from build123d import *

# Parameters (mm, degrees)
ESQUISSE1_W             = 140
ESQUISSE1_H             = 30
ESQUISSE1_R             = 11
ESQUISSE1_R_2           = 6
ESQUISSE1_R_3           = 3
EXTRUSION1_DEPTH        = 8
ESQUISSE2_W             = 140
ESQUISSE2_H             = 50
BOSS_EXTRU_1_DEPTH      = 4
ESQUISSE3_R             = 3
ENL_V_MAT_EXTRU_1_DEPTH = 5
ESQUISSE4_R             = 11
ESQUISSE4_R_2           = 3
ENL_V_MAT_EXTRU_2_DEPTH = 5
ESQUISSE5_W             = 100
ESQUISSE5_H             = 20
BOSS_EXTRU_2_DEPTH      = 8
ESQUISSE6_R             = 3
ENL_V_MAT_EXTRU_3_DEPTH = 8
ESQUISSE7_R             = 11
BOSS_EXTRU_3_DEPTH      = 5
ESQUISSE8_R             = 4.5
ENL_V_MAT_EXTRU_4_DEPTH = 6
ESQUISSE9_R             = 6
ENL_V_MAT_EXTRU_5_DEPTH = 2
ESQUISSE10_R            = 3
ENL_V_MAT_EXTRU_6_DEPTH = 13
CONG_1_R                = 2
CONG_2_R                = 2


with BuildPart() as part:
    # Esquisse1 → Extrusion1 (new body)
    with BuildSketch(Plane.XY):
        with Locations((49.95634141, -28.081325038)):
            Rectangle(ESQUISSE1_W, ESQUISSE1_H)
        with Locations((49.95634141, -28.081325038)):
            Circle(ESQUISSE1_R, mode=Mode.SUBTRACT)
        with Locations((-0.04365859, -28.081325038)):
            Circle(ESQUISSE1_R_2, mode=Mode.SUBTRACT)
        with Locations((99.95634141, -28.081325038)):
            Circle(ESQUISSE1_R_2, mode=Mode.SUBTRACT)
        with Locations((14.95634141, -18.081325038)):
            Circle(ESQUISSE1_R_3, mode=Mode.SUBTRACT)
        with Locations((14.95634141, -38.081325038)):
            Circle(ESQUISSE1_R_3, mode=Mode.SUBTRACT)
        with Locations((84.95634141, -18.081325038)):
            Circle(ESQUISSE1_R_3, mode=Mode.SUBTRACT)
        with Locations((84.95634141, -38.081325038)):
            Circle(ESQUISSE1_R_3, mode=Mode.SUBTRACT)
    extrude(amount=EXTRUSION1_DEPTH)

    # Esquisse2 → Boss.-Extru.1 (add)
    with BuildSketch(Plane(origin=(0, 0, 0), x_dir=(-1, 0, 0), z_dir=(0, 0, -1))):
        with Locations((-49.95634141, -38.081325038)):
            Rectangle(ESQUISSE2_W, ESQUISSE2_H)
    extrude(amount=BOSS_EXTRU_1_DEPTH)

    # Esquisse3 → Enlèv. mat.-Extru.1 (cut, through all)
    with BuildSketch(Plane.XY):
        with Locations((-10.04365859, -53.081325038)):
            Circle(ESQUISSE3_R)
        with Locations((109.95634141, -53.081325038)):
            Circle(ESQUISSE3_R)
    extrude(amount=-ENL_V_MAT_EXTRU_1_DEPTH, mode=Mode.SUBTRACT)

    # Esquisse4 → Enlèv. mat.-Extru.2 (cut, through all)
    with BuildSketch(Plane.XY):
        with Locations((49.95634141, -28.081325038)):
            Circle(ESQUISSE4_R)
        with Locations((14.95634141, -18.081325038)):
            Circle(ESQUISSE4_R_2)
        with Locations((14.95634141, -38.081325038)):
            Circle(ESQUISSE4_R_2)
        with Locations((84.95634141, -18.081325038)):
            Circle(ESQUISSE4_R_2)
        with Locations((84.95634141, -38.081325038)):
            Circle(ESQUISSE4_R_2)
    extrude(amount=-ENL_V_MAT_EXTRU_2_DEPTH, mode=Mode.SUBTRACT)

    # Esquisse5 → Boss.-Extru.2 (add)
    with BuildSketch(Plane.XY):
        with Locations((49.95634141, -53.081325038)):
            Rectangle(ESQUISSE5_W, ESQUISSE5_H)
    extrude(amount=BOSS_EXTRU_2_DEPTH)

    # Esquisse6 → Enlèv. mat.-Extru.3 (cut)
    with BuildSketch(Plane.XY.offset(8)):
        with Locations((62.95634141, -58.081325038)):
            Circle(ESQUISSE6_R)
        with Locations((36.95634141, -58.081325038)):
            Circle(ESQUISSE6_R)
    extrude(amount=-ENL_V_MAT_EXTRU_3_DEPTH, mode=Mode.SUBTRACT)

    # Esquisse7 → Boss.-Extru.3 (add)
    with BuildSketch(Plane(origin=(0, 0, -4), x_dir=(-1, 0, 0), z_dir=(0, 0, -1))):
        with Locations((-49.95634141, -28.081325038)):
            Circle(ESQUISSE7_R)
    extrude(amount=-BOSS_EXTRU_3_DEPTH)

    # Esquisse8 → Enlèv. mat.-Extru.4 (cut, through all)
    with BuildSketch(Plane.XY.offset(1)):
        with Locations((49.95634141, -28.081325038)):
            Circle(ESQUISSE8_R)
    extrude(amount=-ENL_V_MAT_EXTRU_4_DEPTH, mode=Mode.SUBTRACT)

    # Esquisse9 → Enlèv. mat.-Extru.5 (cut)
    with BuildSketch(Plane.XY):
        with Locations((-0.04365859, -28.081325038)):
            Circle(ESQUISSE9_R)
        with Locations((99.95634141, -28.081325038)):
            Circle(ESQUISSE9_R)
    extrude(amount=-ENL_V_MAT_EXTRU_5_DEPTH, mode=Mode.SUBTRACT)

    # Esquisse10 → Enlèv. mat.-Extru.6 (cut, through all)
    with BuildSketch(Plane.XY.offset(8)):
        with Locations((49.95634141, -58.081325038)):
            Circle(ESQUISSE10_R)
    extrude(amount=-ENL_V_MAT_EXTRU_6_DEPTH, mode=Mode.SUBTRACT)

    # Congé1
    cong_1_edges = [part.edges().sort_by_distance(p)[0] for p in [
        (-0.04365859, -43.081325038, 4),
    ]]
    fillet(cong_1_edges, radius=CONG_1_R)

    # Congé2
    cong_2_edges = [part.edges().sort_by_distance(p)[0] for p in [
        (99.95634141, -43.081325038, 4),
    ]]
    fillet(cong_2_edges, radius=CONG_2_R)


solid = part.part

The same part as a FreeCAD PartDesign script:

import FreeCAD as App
import Part
import Sketcher


def edges_at(feature, points):
    """Names of the edges that pass closest to the given points."""
    edges = feature.Shape.Edges
    near = lambda p: min(range(len(edges)), key=lambda i: edges[i].distToShape(Part.Vertex(*p))[0])
    return sorted({f"Edge{near(p) + 1}" for p in points})


def add_polygon(sketch, points):
    """Adds a closed chain of lines whose ends are joined by coincident constraints."""
    first, n = sketch.GeometryCount, len(points)
    for a, b in zip(points, points[1:] + points[:1]):
        sketch.addGeometry(Part.LineSegment(App.Vector(*a, 0), App.Vector(*b, 0)), False)
    for i in range(n):
        sketch.addConstraint(Sketcher.Constraint("Coincident", first + i, 2, first + (i + 1) % n, 1))

doc = App.newDocument("Part")
params = doc.addObject("Spreadsheet::Sheet", "Params")
for row, (alias, value) in enumerate([
    ("sketch1_diameter", "6 mm"),
    ("sketch1_diameter2", "12 mm"),
    ("sketch1_diameter3", "22 mm"),
    ("sketch1_width", "140 mm"),
    ("sketch1_height", "30 mm"),
    ("pad1_length", "8 mm"),
    ("sketch2_width", "140 mm"),
    ("sketch2_height", "50 mm"),
    ("pad2_length", "4 mm"),
    ("sketch3_diameter", "6 mm"),
    ("sketch4_diameter", "22 mm"),
    ("sketch4_diameter2", "6 mm"),
    ("sketch5_width", "100 mm"),
    ("sketch5_height", "20 mm"),
    ("pad3_length", "8 mm"),
    ("sketch6_diameter", "6 mm"),
    ("pocket3_length", "8 mm"),
    ("sketch7_diameter", "22 mm"),
    ("pad4_length", "5 mm"),
    ("sketch8_diameter", "9 mm"),
    ("sketch9_diameter", "12 mm"),
    ("pocket5_length", "2 mm"),
    ("sketch10_diameter", "6 mm"),
    ("fillet_radius", "2 mm"),
    ("fillet2_radius", "2 mm"),
], start=1):
    params.set(f"A{row}", alias)
    params.set(f"B{row}", "=" + value)
    params.setAlias(f"B{row}", alias)

body = doc.addObject("PartDesign::Body", "Body")

# Sketch on XY plane
sketch1 = doc.addObject("Sketcher::SketchObject", "Sketch")
body.addObject(sketch1)
sketch1.AttachmentSupport = (doc.XY_Plane, [""])
sketch1.MapMode = "FlatFace"
add_polygon(sketch1, [(-20.043659, -13.081325), (-20.043659, -43.081325), (119.956341, -43.081325), (119.956341, -13.081325)])  # lines 0-3
sketch1.addGeometry(Part.Circle(App.Vector(14.956341, -38.081325, 0), App.Vector(0, 0, 1), 3), False)  # 4
sketch1.addGeometry(Part.Circle(App.Vector(84.956341, -38.081325, 0), App.Vector(0, 0, 1), 3), False)  # 5
sketch1.addGeometry(Part.Circle(App.Vector(-0.043659, -28.081325, 0), App.Vector(0, 0, 1), 6), False)  # 6
sketch1.addGeometry(Part.Circle(App.Vector(14.956341, -18.081325, 0), App.Vector(0, 0, 1), 3), False)  # 7
sketch1.addGeometry(Part.Circle(App.Vector(49.956341, -28.081325, 0), App.Vector(0, 0, 1), 11), False)  # 8
sketch1.addGeometry(Part.Circle(App.Vector(99.956341, -28.081325, 0), App.Vector(0, 0, 1), 6), False)  # 9
sketch1.addGeometry(Part.Circle(App.Vector(84.956341, -18.081325, 0), App.Vector(0, 0, 1), 3), False)  # 10
sketch1.addConstraint([
    Sketcher.Constraint("Vertical", 0),
    Sketcher.Constraint("Horizontal", 1),
    Sketcher.Constraint("Vertical", 2),
    Sketcher.Constraint("Horizontal", 3),
    Sketcher.Constraint("Equal", 4, 5),
    Sketcher.Constraint("Equal", 5, 7),
    Sketcher.Constraint("Equal", 6, 9),
    Sketcher.Constraint("Equal", 7, 10),
    Sketcher.Constraint("Horizontal", 4, 3, 5, 3),
    Sketcher.Constraint("Horizontal", 6, 3, 8, 3),
    Sketcher.Constraint("Horizontal", 8, 3, 9, 3),
    Sketcher.Constraint("Horizontal", 7, 3, 10, 3),
    Sketcher.Constraint("Vertical", 4, 3, 7, 3),
    Sketcher.Constraint("Vertical", 5, 3, 10, 3),
    Sketcher.Constraint("Diameter", 4, 6.0),
    Sketcher.Constraint("Diameter", 6, 12.0),
    Sketcher.Constraint("Diameter", 8, 22.0),
    Sketcher.Constraint("DistanceX", 1, 1, 1, 2, 140.0),
    Sketcher.Constraint("DistanceY", 0, 2, 0, 1, 30.0),
    Sketcher.Constraint("DistanceX", 4, 3, 5, 3, 70.0),
    Sketcher.Constraint("DistanceX", 6, 3, 4, 3, 15.0),
    Sketcher.Constraint("DistanceY", 4, 3, 6, 3, 10.0),
    Sketcher.Constraint("DistanceY", 6, 3, 7, 3, 10.0),
    Sketcher.Constraint("DistanceX", 8, 3, 5, 3, 35.0),
    Sketcher.Constraint("DistanceX", 5, 3, 9, 3, 15.0),
    Sketcher.Constraint("DistanceX", 0, 2, 6, 3, 20.0),
    Sketcher.Constraint("DistanceY", 0, 2, 6, 3, 15.0),
    Sketcher.Constraint("DistanceX", -1, 1, 4, 3, 14.956341),
    Sketcher.Constraint("DistanceY", 4, 3, -1, 1, 38.081325),
])
sketch1.setExpression("Constraints[18]", "Params.sketch1_diameter")
sketch1.setExpression("Constraints[19]", "Params.sketch1_diameter2")
sketch1.setExpression("Constraints[20]", "Params.sketch1_diameter3")
sketch1.setExpression("Constraints[21]", "Params.sketch1_width")
sketch1.setExpression("Constraints[22]", "Params.sketch1_height")
pad1 = doc.addObject("PartDesign::Pad", "Pad")
body.addObject(pad1)
pad1.Profile = sketch1
pad1.setExpression("Length", "Params.pad1_length")

# Sketch on XY plane
sketch2 = doc.addObject("Sketcher::SketchObject", "Sketch001")
body.addObject(sketch2)
sketch2.AttachmentSupport = (doc.XY_Plane, [""])
sketch2.MapMode = "FlatFace"
add_polygon(sketch2, [(119.956341, -13.081325), (119.956341, -63.081325), (-20.043659, -63.081325), (-20.043659, -13.081325)])  # lines 0-3
sketch2.addConstraint([
    Sketcher.Constraint("Vertical", 0),
    Sketcher.Constraint("Horizontal", 1),
    Sketcher.Constraint("Vertical", 2),
    Sketcher.Constraint("Horizontal", 3),
    Sketcher.Constraint("DistanceX", 1, 2, 1, 1, 140.0),
    Sketcher.Constraint("DistanceY", 0, 2, 0, 1, 50.0),
    Sketcher.Constraint("DistanceX", -1, 1, 0, 2, 119.956341),
    Sketcher.Constraint("DistanceY", 0, 2, -1, 1, 63.081325),
])
sketch2.setExpression("Constraints[8]", "Params.sketch2_width")
sketch2.setExpression("Constraints[9]", "Params.sketch2_height")
pad2 = doc.addObject("PartDesign::Pad", "Pad001")
body.addObject(pad2)
pad2.Profile = sketch2
pad2.setExpression("Length", "Params.pad2_length")
pad2.Reversed = True

# Sketch on XY plane
sketch3 = doc.addObject("Sketcher::SketchObject", "Sketch002")
body.addObject(sketch3)
sketch3.AttachmentSupport = (doc.XY_Plane, [""])
sketch3.MapMode = "FlatFace"
sketch3.addGeometry([
    Part.Circle(App.Vector(-10.043659, -53.081325, 0), App.Vector(0, 0, 1), 3),
    Part.Circle(App.Vector(109.956341, -53.081325, 0), App.Vector(0, 0, 1), 3),
], False)
sketch3.addConstraint([
    Sketcher.Constraint("Equal", 0, 1),
    Sketcher.Constraint("Horizontal", 0, 3, 1, 3),
    Sketcher.Constraint("Diameter", 0, 6.0),
    Sketcher.Constraint("DistanceX", 0, 3, 1, 3, 120.0),
    Sketcher.Constraint("DistanceX", 0, 3, -1, 1, 10.043659),
    Sketcher.Constraint("DistanceY", 0, 3, -1, 1, 53.081325),
])
sketch3.setExpression("Constraints[2]", "Params.sketch3_diameter")
pocket1 = doc.addObject("PartDesign::Pocket", "Pocket")
body.addObject(pocket1)
pocket1.Profile = sketch3
pocket1.Type = "ThroughAll"

# Sketch on XY plane
sketch4 = doc.addObject("Sketcher::SketchObject", "Sketch003")
body.addObject(sketch4)
sketch4.AttachmentSupport = (doc.XY_Plane, [""])
sketch4.MapMode = "FlatFace"
sketch4.addGeometry([
    Part.Circle(App.Vector(49.956341, -28.081325, 0), App.Vector(0, 0, 1), 11),  # 0
    Part.Circle(App.Vector(14.956341, -18.081325, 0), App.Vector(0, 0, 1), 3),  # 1
    Part.Circle(App.Vector(14.956341, -38.081325, 0), App.Vector(0, 0, 1), 3),  # 2
    Part.Circle(App.Vector(84.956341, -18.081325, 0), App.Vector(0, 0, 1), 3),  # 3
    Part.Circle(App.Vector(84.956341, -38.081325, 0), App.Vector(0, 0, 1), 3),  # 4
], False)
sketch4.addConstraint([
    Sketcher.Constraint("Equal", 1, 2),
    Sketcher.Constraint("Equal", 2, 3),
    Sketcher.Constraint("Equal", 3, 4),
    Sketcher.Constraint("Horizontal", 1, 3, 3, 3),
    Sketcher.Constraint("Horizontal", 2, 3, 4, 3),
    Sketcher.Constraint("Vertical", 1, 3, 2, 3),
    Sketcher.Constraint("Vertical", 3, 3, 4, 3),
    Sketcher.Constraint("Diameter", 0, 22.0),
    Sketcher.Constraint("Diameter", 1, 6.0),
    Sketcher.Constraint("DistanceX", 1, 3, 0, 3, 35.0),
    Sketcher.Constraint("DistanceY", 0, 3, 1, 3, 10.0),
    Sketcher.Constraint("DistanceY", 2, 3, 1, 3, 20.0),
    Sketcher.Constraint("DistanceX", 0, 3, 3, 3, 35.0),
    Sketcher.Constraint("DistanceX", -1, 1, 0, 3, 49.956341),
    Sketcher.Constraint("DistanceY", 0, 3, -1, 1, 28.081325),
])
sketch4.setExpression("Constraints[7]", "Params.sketch4_diameter")
sketch4.setExpression("Constraints[8]", "Params.sketch4_diameter2")
pocket2 = doc.addObject("PartDesign::Pocket", "Pocket001")
body.addObject(pocket2)
pocket2.Profile = sketch4
pocket2.Type = "ThroughAll"

# Sketch on XY plane
sketch5 = doc.addObject("Sketcher::SketchObject", "Sketch004")
body.addObject(sketch5)
sketch5.AttachmentSupport = (doc.XY_Plane, [""])
sketch5.MapMode = "FlatFace"
add_polygon(sketch5, [(-0.043659, -43.081325), (-0.043659, -63.081325), (99.956341, -63.081325), (99.956341, -43.081325)])  # lines 0-3
sketch5.addConstraint([
    Sketcher.Constraint("Vertical", 0),
    Sketcher.Constraint("Horizontal", 1),
    Sketcher.Constraint("Vertical", 2),
    Sketcher.Constraint("Horizontal", 3),
    Sketcher.Constraint("DistanceX", 1, 1, 1, 2, 100.0),
    Sketcher.Constraint("DistanceY", 0, 2, 0, 1, 20.0),
    Sketcher.Constraint("DistanceX", 0, 2, -1, 1, 0.043659),
    Sketcher.Constraint("DistanceY", 0, 2, -1, 1, 63.081325),
])
sketch5.setExpression("Constraints[8]", "Params.sketch5_width")
sketch5.setExpression("Constraints[9]", "Params.sketch5_height")
pad3 = doc.addObject("PartDesign::Pad", "Pad002")
body.addObject(pad3)
pad3.Profile = sketch5
pad3.setExpression("Length", "Params.pad3_length")

# Sketch on XY plane
sketch6 = doc.addObject("Sketcher::SketchObject", "Sketch005")
body.addObject(sketch6)
sketch6.AttachmentSupport = (doc.XY_Plane, [""])
sketch6.MapMode = "FlatFace"
sketch6.AttachmentOffset = App.Placement(App.Vector(0, 0, 8), App.Rotation())
sketch6.addGeometry([
    Part.Circle(App.Vector(62.956341, -58.081325, 0), App.Vector(0, 0, 1), 3),
    Part.Circle(App.Vector(36.956341, -58.081325, 0), App.Vector(0, 0, 1), 3),
], False)
sketch6.addConstraint([
    Sketcher.Constraint("Equal", 0, 1),
    Sketcher.Constraint("Horizontal", 0, 3, 1, 3),
    Sketcher.Constraint("Diameter", 0, 6.0),
    Sketcher.Constraint("DistanceX", 1, 3, 0, 3, 26.0),
    Sketcher.Constraint("DistanceX", -1, 1, 0, 3, 62.956341),
    Sketcher.Constraint("DistanceY", 0, 3, -1, 1, 58.081325),
])
sketch6.setExpression("Constraints[2]", "Params.sketch6_diameter")
pocket3 = doc.addObject("PartDesign::Pocket", "Pocket002")
body.addObject(pocket3)
pocket3.Profile = sketch6
pocket3.setExpression("Length", "Params.pocket3_length")

# Sketch on XY plane
sketch7 = doc.addObject("Sketcher::SketchObject", "Sketch006")
body.addObject(sketch7)
sketch7.AttachmentSupport = (doc.XY_Plane, [""])
sketch7.MapMode = "FlatFace"
sketch7.AttachmentOffset = App.Placement(App.Vector(0, 0, -4), App.Rotation())
sketch7.addGeometry(Part.Circle(App.Vector(49.956341, -28.081325, 0), App.Vector(0, 0, 1), 11), False)
sketch7.addConstraint([
    Sketcher.Constraint("Diameter", 0, 22.0),
    Sketcher.Constraint("DistanceX", -1, 1, 0, 3, 49.956341),
    Sketcher.Constraint("DistanceY", 0, 3, -1, 1, 28.081325),
])
sketch7.setExpression("Constraints[0]", "Params.sketch7_diameter")
pad4 = doc.addObject("PartDesign::Pad", "Pad003")
body.addObject(pad4)
pad4.Profile = sketch7
pad4.setExpression("Length", "Params.pad4_length")

# Sketch on XY plane
sketch8 = doc.addObject("Sketcher::SketchObject", "Sketch007")
body.addObject(sketch8)
sketch8.AttachmentSupport = (doc.XY_Plane, [""])
sketch8.MapMode = "FlatFace"
sketch8.AttachmentOffset = App.Placement(App.Vector(0, 0, 1), App.Rotation())
sketch8.addGeometry(Part.Circle(App.Vector(49.956341, -28.081325, 0), App.Vector(0, 0, 1), 4.5), False)
sketch8.addConstraint([
    Sketcher.Constraint("Diameter", 0, 9.0),
    Sketcher.Constraint("DistanceX", -1, 1, 0, 3, 49.956341),
    Sketcher.Constraint("DistanceY", 0, 3, -1, 1, 28.081325),
])
sketch8.setExpression("Constraints[0]", "Params.sketch8_diameter")
pocket4 = doc.addObject("PartDesign::Pocket", "Pocket003")
body.addObject(pocket4)
pocket4.Profile = sketch8
pocket4.Type = "ThroughAll"

# Sketch on XY plane
sketch9 = doc.addObject("Sketcher::SketchObject", "Sketch008")
body.addObject(sketch9)
sketch9.AttachmentSupport = (doc.XY_Plane, [""])
sketch9.MapMode = "FlatFace"
sketch9.addGeometry([
    Part.Circle(App.Vector(-0.043659, -28.081325, 0), App.Vector(0, 0, 1), 6),
    Part.Circle(App.Vector(99.956341, -28.081325, 0), App.Vector(0, 0, 1), 6),
], False)
sketch9.addConstraint([
    Sketcher.Constraint("Equal", 0, 1),
    Sketcher.Constraint("Horizontal", 0, 3, 1, 3),
    Sketcher.Constraint("Diameter", 0, 12.0),
    Sketcher.Constraint("DistanceX", 0, 3, 1, 3, 100.0),
    Sketcher.Constraint("DistanceX", 0, 3, -1, 1, 0.043659),
    Sketcher.Constraint("DistanceY", 0, 3, -1, 1, 28.081325),
])
sketch9.setExpression("Constraints[2]", "Params.sketch9_diameter")
pocket5 = doc.addObject("PartDesign::Pocket", "Pocket004")
body.addObject(pocket5)
pocket5.Profile = sketch9
pocket5.setExpression("Length", "Params.pocket5_length")

# Sketch on XY plane
sketch10 = doc.addObject("Sketcher::SketchObject", "Sketch009")
body.addObject(sketch10)
sketch10.AttachmentSupport = (doc.XY_Plane, [""])
sketch10.MapMode = "FlatFace"
sketch10.AttachmentOffset = App.Placement(App.Vector(0, 0, 8), App.Rotation())
sketch10.addGeometry(Part.Circle(App.Vector(49.956341, -58.081325, 0), App.Vector(0, 0, 1), 3), False)
sketch10.addConstraint([
    Sketcher.Constraint("Diameter", 0, 6.0),
    Sketcher.Constraint("DistanceX", -1, 1, 0, 3, 49.956341),
    Sketcher.Constraint("DistanceY", 0, 3, -1, 1, 58.081325),
])
sketch10.setExpression("Constraints[0]", "Params.sketch10_diameter")
pocket6 = doc.addObject("PartDesign::Pocket", "Pocket005")
body.addObject(pocket6)
pocket6.Profile = sketch10
pocket6.Type = "ThroughAll"
doc.recompute()

fillet = doc.addObject("PartDesign::Fillet", "Fillet")
body.addObject(fillet)
fillet.Base = (pocket6, edges_at(pocket6, [(-0.044, -43.081, 4)]))
fillet.setExpression("Radius", "Params.fillet_radius")
doc.recompute()

fillet2 = doc.addObject("PartDesign::Fillet", "Fillet001")
body.addObject(fillet2)
fillet2.Base = (fillet, edges_at(fillet, [(99.956, -43.081, 4)]))
fillet2.setExpression("Radius", "Params.fillet2_radius")

doc.recompute()
